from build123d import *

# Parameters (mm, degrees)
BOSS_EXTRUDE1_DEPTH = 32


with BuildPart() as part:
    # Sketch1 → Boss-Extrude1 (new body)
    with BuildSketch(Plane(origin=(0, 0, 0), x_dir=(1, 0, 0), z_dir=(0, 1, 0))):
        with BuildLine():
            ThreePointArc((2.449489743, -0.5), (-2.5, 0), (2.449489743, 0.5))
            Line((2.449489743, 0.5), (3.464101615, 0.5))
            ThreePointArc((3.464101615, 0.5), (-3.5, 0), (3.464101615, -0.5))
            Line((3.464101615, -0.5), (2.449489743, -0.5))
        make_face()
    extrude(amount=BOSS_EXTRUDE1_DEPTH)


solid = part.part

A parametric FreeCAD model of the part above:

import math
import FreeCAD as App
import Part
import Sketcher

V = App.Vector
Q = App.Units.Quantity

doc = App.newDocument("Part")
body = doc.addObject("PartDesign::Body", "Body")

# Sketch on XZ plane
sketch1 = body.newObject("Sketcher::SketchObject", "Sketch")
sketch1.AttachmentSupport = (doc.getObject("XZ_Plane"), [""])
sketch1.MapMode = "FlatFace"
sketch1.addGeometry(Part.ArcOfCircle(Part.Circle(V(0, 0, 0), V(0, 0, 1), 2.5), math.radians(11.536959), math.radians(348.463041)), False)
sketch1.addGeometry(Part.LineSegment(V(2.44949, -0.5, 0), V(3.464102, -0.5, 0)), False)
sketch1.addGeometry(Part.ArcOfCircle(Part.Circle(V(0, 0, 0), V(0, 0, 1), 3.5), math.radians(8.213211), math.radians(351.786789)), False)
sketch1.addGeometry(Part.LineSegment(V(3.464102, 0.5, 0), V(2.44949, 0.5, 0)), False)
sketch1.addConstraint(Sketcher.Constraint("Coincident", 0, 2, 1, 1))
sketch1.addConstraint(Sketcher.Constraint("Coincident", 1, 2, 2, 2))
sketch1.addConstraint(Sketcher.Constraint("Coincident", 2, 1, 3, 1))
sketch1.addConstraint(Sketcher.Constraint("Coincident", 3, 2, 0, 1))
sketch1.addConstraint(Sketcher.Constraint("Horizontal", 1))
sketch1.addConstraint(Sketcher.Constraint("Horizontal", 3))
sketch1.addConstraint(Sketcher.Constraint("Coincident", 0, 3, -1, 1))
sketch1.addConstraint(Sketcher.Constraint("Coincident", 2, 3, -1, 1))
sketch1.addConstraint(Sketcher.Constraint("Vertical", 1, 2, 2, 1))
sketch1.addConstraint(Sketcher.Constraint("Radius", 0, Q("2.5 mm")))
sketch1.addConstraint(Sketcher.Constraint("Radius", 2, Q("3.5 mm")))
sketch1.addConstraint(Sketcher.Constraint("DistanceY", 1, 2, 2, 1, Q("1 mm")))
pad1 = body.newObject("PartDesign::Pad", "Pad")
pad1.Profile = sketch1
pad1.Length = 32
pad1.Reversed = True

doc.recompute()
